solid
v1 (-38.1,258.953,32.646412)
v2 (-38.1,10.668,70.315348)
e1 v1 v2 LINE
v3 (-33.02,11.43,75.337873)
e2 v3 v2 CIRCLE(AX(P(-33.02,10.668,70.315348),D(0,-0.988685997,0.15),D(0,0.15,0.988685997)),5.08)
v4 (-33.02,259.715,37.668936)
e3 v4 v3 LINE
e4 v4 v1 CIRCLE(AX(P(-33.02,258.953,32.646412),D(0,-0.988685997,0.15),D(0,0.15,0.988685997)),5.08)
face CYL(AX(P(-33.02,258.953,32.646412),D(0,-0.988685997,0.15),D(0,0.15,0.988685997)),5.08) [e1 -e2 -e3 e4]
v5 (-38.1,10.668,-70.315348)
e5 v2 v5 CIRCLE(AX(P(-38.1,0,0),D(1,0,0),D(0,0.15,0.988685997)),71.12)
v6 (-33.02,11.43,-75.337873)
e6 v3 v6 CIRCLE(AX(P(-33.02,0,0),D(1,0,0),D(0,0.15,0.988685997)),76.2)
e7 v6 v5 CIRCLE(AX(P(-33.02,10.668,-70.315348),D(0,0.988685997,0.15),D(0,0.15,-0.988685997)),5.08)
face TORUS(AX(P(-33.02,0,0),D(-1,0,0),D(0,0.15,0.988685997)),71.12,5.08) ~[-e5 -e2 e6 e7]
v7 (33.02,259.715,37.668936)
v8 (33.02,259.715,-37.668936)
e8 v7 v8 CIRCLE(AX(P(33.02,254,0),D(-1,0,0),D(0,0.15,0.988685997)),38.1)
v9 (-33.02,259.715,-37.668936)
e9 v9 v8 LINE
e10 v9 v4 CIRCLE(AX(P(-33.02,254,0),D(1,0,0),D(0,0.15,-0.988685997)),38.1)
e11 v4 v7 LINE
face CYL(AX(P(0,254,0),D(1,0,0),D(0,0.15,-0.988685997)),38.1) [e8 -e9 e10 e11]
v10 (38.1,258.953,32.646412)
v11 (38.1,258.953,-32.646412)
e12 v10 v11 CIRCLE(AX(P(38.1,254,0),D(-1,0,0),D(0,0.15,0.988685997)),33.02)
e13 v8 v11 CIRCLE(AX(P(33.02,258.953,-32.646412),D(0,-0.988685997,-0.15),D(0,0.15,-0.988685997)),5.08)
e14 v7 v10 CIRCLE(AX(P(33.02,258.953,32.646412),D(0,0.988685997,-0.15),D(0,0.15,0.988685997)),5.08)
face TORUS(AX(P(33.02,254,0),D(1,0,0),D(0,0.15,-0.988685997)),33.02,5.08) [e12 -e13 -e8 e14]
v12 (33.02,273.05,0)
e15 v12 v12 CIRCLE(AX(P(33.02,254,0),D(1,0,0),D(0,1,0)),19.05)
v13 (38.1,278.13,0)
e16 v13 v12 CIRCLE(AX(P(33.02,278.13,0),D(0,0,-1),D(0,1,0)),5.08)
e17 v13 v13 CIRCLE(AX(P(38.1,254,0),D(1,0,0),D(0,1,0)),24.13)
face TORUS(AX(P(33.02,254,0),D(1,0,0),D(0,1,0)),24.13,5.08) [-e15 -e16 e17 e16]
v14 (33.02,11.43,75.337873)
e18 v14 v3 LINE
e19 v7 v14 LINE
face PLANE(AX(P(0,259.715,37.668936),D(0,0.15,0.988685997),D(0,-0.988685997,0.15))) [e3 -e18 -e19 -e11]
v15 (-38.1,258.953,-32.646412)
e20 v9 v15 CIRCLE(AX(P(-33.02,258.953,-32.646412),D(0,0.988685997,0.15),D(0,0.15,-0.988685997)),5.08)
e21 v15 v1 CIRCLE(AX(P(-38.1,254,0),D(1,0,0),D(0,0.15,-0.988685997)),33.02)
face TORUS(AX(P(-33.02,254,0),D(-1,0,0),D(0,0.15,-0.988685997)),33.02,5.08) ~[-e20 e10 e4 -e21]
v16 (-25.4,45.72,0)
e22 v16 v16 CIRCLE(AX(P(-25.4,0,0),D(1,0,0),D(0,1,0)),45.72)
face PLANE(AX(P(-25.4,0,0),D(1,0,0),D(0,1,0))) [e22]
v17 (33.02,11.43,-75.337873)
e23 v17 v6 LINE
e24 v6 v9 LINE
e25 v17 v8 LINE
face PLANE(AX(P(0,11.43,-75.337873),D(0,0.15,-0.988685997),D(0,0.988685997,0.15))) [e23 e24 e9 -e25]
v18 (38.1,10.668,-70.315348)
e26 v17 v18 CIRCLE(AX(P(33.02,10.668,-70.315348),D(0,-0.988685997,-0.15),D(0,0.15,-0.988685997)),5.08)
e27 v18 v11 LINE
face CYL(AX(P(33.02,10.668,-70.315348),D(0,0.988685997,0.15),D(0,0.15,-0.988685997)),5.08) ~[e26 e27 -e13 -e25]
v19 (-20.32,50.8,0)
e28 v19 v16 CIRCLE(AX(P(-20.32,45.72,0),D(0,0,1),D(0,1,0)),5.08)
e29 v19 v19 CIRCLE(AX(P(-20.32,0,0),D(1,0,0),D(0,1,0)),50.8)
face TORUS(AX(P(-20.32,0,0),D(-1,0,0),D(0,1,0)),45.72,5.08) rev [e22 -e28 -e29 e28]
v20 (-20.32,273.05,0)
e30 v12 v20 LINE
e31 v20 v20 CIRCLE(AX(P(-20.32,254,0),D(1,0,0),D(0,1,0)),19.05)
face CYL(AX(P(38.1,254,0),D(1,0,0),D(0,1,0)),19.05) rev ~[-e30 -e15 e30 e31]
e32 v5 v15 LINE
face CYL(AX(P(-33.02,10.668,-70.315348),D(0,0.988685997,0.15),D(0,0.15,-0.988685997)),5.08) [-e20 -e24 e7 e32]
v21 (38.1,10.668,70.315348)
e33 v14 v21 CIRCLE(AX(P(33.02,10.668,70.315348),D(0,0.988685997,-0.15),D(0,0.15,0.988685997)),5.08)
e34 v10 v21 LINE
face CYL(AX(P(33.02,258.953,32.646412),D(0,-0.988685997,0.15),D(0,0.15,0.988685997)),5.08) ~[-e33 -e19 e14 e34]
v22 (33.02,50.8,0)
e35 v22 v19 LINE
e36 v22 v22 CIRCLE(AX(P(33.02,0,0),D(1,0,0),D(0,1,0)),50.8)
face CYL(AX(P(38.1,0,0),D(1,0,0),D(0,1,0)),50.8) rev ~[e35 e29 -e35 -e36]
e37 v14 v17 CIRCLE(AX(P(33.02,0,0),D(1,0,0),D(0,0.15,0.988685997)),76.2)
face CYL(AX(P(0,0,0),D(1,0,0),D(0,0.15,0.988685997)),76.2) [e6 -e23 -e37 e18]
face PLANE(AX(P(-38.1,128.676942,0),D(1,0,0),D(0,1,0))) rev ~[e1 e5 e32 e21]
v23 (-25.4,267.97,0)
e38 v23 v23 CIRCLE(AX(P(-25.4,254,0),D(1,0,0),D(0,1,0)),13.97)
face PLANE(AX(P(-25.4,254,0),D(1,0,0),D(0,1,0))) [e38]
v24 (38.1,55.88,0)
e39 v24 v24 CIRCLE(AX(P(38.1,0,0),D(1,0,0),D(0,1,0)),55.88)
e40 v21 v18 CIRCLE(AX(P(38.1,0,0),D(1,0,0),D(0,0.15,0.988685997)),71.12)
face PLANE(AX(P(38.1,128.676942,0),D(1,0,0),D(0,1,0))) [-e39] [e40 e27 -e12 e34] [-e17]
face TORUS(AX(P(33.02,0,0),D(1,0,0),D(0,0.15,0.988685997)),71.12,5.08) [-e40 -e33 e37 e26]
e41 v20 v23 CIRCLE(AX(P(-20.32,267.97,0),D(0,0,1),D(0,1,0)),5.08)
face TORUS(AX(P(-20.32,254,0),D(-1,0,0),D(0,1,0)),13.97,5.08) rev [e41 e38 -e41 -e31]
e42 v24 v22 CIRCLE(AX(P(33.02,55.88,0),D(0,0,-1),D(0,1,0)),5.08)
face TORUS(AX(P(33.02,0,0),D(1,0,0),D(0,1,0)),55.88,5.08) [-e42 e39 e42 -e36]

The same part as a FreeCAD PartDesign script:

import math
import FreeCAD as App
import Part
import Sketcher
Q = App.Units.Quantity


def edges_at(feature, points):
    """Names of the edges that pass closest to the given points."""
    edges = feature.Shape.Edges
    near = lambda p: min(range(len(edges)), key=lambda i: edges[i].distToShape(Part.Vertex(*p))[0])
    return sorted({f"Edge{near(p) + 1}" for p in points})

doc = App.newDocument("Part")
body = doc.addObject("PartDesign::Body", "Body")

# Sketch on YZ plane
sketch1 = body.newObject("Sketcher::SketchObject", "Sketch")
sketch1.AttachmentSupport = (doc.getObject("YZ_Plane"), [""])
sketch1.MapMode = "FlatFace"
sketch1.addGeometry([
    Part.LineSegment(App.Vector(11.43, -75.337873, 0), App.Vector(259.715, -37.668936, 0)),  # 0
    Part.ArcOfCircle(Part.Circle(App.Vector(254, 0, 0), App.Vector(0, 0, 1), 38.1), math.radians(-81.373073), math.radians(0)),  # 1
    Part.ArcOfCircle(Part.Circle(App.Vector(254, 0, 0), App.Vector(0, 0, 1), 38.1), math.radians(0), math.radians(81.373073)),  # 2
    Part.LineSegment(App.Vector(259.715, 37.668936, 0), App.Vector(11.43, 75.337873, 0)),  # 3
    Part.ArcOfCircle(Part.Circle(App.Vector(0, 0, 0), App.Vector(0, 0, 1), 76.2), math.radians(81.373073), math.radians(278.626927)),  # 4
], False)
sketch1.addConstraint([
    Sketcher.Constraint("Tangent", 0, 2, 1, 1),
    Sketcher.Constraint("Tangent", 1, 2, 2, 1),
    Sketcher.Constraint("Tangent", 2, 2, 3, 1),
    Sketcher.Constraint("Tangent", 3, 2, 4, 1),
    Sketcher.Constraint("Tangent", 4, 2, 0, 1),
    Sketcher.Constraint("Coincident", 4, 3, -1, 1),
    Sketcher.Constraint("Equal", 1, 2),
    Sketcher.Constraint("PointOnObject", 1, 3, -1),
    Sketcher.Constraint("PointOnObject", 1, 2, -1),
    Sketcher.Constraint("Radius", 4, Q("3 in")),
    Sketcher.Constraint("Radius", 1, Q("1.5 in")),
    Sketcher.Constraint("DistanceX", -1, 1, 1, 3, Q("10 in")),
])
pad1 = body.newObject("PartDesign::Pad", "Pad")
pad1.Profile = sketch1
pad1.Length = Q("3 in")
pad1.Midplane = True

# Sketch on YZ plane
sketch2 = body.newObject("Sketcher::SketchObject", "Sketch001")
sketch2.AttachmentSupport = (doc.getObject("YZ_Plane"), [""])
sketch2.MapMode = "FlatFace"
sketch2.AttachmentOffset = App.Placement(App.Vector(0, 0, 1.5 * 25.4), App.Rotation())
sketch2.addGeometry([
    Part.Circle(App.Vector(0, 0, 0), App.Vector(0, 0, 1), 50.8),
    Part.Circle(App.Vector(254, 0, 0), App.Vector(0, 0, 1), 19.05),
], False)
sketch2.addConstraint([
    Sketcher.Constraint("Coincident", 0, 3, -1, 1),
    Sketcher.Constraint("PointOnObject", 1, 3, -1),
    Sketcher.Constraint("Diameter", 0, Q("4 in")),
    Sketcher.Constraint("Diameter", 1, Q("1.5 in")),
    Sketcher.Constraint("DistanceX", -1, 1, 1, 3, Q("10 in")),
])
pocket1 = body.newObject("PartDesign::Pocket", "Pocket")
pocket1.Profile = sketch2
pocket1.Length = Q("2.5 in")
doc.recompute()

fillet = body.newObject("PartDesign::Fillet", "Fillet")
fillet.Base = (pocket1, edges_at(pocket1, [
    (38.1, 135.572, -56.503),
    (38.1, -76.2, 0),
    (38.1, 282.891, 24.838),
    (38.1, 135.572, 56.503),
    (38.1, -50.8, 0),
    (38.1, 234.95, 0),
]))
fillet.Radius = Q("0.2 in")
doc.recompute()

fillet2 = body.newObject("PartDesign::Fillet", "Fillet001")
fillet2.Base = (fillet, edges_at(fillet, [
    (3.81, 50.8, 0),
    (33.02, -50.8, 0),
    (-25.4, -50.8, 0),
    (-38.1, 135.572, -56.503),
    (-38.1, 282.891, -24.838),
    (-38.1, 135.572, 56.503),
    (-38.1, -76.2, 0),
    (33.02, 234.95, 0),
    (-25.4, 234.95, 0),
]))
fillet2.Radius = Q("0.2 in")

doc.recompute()
